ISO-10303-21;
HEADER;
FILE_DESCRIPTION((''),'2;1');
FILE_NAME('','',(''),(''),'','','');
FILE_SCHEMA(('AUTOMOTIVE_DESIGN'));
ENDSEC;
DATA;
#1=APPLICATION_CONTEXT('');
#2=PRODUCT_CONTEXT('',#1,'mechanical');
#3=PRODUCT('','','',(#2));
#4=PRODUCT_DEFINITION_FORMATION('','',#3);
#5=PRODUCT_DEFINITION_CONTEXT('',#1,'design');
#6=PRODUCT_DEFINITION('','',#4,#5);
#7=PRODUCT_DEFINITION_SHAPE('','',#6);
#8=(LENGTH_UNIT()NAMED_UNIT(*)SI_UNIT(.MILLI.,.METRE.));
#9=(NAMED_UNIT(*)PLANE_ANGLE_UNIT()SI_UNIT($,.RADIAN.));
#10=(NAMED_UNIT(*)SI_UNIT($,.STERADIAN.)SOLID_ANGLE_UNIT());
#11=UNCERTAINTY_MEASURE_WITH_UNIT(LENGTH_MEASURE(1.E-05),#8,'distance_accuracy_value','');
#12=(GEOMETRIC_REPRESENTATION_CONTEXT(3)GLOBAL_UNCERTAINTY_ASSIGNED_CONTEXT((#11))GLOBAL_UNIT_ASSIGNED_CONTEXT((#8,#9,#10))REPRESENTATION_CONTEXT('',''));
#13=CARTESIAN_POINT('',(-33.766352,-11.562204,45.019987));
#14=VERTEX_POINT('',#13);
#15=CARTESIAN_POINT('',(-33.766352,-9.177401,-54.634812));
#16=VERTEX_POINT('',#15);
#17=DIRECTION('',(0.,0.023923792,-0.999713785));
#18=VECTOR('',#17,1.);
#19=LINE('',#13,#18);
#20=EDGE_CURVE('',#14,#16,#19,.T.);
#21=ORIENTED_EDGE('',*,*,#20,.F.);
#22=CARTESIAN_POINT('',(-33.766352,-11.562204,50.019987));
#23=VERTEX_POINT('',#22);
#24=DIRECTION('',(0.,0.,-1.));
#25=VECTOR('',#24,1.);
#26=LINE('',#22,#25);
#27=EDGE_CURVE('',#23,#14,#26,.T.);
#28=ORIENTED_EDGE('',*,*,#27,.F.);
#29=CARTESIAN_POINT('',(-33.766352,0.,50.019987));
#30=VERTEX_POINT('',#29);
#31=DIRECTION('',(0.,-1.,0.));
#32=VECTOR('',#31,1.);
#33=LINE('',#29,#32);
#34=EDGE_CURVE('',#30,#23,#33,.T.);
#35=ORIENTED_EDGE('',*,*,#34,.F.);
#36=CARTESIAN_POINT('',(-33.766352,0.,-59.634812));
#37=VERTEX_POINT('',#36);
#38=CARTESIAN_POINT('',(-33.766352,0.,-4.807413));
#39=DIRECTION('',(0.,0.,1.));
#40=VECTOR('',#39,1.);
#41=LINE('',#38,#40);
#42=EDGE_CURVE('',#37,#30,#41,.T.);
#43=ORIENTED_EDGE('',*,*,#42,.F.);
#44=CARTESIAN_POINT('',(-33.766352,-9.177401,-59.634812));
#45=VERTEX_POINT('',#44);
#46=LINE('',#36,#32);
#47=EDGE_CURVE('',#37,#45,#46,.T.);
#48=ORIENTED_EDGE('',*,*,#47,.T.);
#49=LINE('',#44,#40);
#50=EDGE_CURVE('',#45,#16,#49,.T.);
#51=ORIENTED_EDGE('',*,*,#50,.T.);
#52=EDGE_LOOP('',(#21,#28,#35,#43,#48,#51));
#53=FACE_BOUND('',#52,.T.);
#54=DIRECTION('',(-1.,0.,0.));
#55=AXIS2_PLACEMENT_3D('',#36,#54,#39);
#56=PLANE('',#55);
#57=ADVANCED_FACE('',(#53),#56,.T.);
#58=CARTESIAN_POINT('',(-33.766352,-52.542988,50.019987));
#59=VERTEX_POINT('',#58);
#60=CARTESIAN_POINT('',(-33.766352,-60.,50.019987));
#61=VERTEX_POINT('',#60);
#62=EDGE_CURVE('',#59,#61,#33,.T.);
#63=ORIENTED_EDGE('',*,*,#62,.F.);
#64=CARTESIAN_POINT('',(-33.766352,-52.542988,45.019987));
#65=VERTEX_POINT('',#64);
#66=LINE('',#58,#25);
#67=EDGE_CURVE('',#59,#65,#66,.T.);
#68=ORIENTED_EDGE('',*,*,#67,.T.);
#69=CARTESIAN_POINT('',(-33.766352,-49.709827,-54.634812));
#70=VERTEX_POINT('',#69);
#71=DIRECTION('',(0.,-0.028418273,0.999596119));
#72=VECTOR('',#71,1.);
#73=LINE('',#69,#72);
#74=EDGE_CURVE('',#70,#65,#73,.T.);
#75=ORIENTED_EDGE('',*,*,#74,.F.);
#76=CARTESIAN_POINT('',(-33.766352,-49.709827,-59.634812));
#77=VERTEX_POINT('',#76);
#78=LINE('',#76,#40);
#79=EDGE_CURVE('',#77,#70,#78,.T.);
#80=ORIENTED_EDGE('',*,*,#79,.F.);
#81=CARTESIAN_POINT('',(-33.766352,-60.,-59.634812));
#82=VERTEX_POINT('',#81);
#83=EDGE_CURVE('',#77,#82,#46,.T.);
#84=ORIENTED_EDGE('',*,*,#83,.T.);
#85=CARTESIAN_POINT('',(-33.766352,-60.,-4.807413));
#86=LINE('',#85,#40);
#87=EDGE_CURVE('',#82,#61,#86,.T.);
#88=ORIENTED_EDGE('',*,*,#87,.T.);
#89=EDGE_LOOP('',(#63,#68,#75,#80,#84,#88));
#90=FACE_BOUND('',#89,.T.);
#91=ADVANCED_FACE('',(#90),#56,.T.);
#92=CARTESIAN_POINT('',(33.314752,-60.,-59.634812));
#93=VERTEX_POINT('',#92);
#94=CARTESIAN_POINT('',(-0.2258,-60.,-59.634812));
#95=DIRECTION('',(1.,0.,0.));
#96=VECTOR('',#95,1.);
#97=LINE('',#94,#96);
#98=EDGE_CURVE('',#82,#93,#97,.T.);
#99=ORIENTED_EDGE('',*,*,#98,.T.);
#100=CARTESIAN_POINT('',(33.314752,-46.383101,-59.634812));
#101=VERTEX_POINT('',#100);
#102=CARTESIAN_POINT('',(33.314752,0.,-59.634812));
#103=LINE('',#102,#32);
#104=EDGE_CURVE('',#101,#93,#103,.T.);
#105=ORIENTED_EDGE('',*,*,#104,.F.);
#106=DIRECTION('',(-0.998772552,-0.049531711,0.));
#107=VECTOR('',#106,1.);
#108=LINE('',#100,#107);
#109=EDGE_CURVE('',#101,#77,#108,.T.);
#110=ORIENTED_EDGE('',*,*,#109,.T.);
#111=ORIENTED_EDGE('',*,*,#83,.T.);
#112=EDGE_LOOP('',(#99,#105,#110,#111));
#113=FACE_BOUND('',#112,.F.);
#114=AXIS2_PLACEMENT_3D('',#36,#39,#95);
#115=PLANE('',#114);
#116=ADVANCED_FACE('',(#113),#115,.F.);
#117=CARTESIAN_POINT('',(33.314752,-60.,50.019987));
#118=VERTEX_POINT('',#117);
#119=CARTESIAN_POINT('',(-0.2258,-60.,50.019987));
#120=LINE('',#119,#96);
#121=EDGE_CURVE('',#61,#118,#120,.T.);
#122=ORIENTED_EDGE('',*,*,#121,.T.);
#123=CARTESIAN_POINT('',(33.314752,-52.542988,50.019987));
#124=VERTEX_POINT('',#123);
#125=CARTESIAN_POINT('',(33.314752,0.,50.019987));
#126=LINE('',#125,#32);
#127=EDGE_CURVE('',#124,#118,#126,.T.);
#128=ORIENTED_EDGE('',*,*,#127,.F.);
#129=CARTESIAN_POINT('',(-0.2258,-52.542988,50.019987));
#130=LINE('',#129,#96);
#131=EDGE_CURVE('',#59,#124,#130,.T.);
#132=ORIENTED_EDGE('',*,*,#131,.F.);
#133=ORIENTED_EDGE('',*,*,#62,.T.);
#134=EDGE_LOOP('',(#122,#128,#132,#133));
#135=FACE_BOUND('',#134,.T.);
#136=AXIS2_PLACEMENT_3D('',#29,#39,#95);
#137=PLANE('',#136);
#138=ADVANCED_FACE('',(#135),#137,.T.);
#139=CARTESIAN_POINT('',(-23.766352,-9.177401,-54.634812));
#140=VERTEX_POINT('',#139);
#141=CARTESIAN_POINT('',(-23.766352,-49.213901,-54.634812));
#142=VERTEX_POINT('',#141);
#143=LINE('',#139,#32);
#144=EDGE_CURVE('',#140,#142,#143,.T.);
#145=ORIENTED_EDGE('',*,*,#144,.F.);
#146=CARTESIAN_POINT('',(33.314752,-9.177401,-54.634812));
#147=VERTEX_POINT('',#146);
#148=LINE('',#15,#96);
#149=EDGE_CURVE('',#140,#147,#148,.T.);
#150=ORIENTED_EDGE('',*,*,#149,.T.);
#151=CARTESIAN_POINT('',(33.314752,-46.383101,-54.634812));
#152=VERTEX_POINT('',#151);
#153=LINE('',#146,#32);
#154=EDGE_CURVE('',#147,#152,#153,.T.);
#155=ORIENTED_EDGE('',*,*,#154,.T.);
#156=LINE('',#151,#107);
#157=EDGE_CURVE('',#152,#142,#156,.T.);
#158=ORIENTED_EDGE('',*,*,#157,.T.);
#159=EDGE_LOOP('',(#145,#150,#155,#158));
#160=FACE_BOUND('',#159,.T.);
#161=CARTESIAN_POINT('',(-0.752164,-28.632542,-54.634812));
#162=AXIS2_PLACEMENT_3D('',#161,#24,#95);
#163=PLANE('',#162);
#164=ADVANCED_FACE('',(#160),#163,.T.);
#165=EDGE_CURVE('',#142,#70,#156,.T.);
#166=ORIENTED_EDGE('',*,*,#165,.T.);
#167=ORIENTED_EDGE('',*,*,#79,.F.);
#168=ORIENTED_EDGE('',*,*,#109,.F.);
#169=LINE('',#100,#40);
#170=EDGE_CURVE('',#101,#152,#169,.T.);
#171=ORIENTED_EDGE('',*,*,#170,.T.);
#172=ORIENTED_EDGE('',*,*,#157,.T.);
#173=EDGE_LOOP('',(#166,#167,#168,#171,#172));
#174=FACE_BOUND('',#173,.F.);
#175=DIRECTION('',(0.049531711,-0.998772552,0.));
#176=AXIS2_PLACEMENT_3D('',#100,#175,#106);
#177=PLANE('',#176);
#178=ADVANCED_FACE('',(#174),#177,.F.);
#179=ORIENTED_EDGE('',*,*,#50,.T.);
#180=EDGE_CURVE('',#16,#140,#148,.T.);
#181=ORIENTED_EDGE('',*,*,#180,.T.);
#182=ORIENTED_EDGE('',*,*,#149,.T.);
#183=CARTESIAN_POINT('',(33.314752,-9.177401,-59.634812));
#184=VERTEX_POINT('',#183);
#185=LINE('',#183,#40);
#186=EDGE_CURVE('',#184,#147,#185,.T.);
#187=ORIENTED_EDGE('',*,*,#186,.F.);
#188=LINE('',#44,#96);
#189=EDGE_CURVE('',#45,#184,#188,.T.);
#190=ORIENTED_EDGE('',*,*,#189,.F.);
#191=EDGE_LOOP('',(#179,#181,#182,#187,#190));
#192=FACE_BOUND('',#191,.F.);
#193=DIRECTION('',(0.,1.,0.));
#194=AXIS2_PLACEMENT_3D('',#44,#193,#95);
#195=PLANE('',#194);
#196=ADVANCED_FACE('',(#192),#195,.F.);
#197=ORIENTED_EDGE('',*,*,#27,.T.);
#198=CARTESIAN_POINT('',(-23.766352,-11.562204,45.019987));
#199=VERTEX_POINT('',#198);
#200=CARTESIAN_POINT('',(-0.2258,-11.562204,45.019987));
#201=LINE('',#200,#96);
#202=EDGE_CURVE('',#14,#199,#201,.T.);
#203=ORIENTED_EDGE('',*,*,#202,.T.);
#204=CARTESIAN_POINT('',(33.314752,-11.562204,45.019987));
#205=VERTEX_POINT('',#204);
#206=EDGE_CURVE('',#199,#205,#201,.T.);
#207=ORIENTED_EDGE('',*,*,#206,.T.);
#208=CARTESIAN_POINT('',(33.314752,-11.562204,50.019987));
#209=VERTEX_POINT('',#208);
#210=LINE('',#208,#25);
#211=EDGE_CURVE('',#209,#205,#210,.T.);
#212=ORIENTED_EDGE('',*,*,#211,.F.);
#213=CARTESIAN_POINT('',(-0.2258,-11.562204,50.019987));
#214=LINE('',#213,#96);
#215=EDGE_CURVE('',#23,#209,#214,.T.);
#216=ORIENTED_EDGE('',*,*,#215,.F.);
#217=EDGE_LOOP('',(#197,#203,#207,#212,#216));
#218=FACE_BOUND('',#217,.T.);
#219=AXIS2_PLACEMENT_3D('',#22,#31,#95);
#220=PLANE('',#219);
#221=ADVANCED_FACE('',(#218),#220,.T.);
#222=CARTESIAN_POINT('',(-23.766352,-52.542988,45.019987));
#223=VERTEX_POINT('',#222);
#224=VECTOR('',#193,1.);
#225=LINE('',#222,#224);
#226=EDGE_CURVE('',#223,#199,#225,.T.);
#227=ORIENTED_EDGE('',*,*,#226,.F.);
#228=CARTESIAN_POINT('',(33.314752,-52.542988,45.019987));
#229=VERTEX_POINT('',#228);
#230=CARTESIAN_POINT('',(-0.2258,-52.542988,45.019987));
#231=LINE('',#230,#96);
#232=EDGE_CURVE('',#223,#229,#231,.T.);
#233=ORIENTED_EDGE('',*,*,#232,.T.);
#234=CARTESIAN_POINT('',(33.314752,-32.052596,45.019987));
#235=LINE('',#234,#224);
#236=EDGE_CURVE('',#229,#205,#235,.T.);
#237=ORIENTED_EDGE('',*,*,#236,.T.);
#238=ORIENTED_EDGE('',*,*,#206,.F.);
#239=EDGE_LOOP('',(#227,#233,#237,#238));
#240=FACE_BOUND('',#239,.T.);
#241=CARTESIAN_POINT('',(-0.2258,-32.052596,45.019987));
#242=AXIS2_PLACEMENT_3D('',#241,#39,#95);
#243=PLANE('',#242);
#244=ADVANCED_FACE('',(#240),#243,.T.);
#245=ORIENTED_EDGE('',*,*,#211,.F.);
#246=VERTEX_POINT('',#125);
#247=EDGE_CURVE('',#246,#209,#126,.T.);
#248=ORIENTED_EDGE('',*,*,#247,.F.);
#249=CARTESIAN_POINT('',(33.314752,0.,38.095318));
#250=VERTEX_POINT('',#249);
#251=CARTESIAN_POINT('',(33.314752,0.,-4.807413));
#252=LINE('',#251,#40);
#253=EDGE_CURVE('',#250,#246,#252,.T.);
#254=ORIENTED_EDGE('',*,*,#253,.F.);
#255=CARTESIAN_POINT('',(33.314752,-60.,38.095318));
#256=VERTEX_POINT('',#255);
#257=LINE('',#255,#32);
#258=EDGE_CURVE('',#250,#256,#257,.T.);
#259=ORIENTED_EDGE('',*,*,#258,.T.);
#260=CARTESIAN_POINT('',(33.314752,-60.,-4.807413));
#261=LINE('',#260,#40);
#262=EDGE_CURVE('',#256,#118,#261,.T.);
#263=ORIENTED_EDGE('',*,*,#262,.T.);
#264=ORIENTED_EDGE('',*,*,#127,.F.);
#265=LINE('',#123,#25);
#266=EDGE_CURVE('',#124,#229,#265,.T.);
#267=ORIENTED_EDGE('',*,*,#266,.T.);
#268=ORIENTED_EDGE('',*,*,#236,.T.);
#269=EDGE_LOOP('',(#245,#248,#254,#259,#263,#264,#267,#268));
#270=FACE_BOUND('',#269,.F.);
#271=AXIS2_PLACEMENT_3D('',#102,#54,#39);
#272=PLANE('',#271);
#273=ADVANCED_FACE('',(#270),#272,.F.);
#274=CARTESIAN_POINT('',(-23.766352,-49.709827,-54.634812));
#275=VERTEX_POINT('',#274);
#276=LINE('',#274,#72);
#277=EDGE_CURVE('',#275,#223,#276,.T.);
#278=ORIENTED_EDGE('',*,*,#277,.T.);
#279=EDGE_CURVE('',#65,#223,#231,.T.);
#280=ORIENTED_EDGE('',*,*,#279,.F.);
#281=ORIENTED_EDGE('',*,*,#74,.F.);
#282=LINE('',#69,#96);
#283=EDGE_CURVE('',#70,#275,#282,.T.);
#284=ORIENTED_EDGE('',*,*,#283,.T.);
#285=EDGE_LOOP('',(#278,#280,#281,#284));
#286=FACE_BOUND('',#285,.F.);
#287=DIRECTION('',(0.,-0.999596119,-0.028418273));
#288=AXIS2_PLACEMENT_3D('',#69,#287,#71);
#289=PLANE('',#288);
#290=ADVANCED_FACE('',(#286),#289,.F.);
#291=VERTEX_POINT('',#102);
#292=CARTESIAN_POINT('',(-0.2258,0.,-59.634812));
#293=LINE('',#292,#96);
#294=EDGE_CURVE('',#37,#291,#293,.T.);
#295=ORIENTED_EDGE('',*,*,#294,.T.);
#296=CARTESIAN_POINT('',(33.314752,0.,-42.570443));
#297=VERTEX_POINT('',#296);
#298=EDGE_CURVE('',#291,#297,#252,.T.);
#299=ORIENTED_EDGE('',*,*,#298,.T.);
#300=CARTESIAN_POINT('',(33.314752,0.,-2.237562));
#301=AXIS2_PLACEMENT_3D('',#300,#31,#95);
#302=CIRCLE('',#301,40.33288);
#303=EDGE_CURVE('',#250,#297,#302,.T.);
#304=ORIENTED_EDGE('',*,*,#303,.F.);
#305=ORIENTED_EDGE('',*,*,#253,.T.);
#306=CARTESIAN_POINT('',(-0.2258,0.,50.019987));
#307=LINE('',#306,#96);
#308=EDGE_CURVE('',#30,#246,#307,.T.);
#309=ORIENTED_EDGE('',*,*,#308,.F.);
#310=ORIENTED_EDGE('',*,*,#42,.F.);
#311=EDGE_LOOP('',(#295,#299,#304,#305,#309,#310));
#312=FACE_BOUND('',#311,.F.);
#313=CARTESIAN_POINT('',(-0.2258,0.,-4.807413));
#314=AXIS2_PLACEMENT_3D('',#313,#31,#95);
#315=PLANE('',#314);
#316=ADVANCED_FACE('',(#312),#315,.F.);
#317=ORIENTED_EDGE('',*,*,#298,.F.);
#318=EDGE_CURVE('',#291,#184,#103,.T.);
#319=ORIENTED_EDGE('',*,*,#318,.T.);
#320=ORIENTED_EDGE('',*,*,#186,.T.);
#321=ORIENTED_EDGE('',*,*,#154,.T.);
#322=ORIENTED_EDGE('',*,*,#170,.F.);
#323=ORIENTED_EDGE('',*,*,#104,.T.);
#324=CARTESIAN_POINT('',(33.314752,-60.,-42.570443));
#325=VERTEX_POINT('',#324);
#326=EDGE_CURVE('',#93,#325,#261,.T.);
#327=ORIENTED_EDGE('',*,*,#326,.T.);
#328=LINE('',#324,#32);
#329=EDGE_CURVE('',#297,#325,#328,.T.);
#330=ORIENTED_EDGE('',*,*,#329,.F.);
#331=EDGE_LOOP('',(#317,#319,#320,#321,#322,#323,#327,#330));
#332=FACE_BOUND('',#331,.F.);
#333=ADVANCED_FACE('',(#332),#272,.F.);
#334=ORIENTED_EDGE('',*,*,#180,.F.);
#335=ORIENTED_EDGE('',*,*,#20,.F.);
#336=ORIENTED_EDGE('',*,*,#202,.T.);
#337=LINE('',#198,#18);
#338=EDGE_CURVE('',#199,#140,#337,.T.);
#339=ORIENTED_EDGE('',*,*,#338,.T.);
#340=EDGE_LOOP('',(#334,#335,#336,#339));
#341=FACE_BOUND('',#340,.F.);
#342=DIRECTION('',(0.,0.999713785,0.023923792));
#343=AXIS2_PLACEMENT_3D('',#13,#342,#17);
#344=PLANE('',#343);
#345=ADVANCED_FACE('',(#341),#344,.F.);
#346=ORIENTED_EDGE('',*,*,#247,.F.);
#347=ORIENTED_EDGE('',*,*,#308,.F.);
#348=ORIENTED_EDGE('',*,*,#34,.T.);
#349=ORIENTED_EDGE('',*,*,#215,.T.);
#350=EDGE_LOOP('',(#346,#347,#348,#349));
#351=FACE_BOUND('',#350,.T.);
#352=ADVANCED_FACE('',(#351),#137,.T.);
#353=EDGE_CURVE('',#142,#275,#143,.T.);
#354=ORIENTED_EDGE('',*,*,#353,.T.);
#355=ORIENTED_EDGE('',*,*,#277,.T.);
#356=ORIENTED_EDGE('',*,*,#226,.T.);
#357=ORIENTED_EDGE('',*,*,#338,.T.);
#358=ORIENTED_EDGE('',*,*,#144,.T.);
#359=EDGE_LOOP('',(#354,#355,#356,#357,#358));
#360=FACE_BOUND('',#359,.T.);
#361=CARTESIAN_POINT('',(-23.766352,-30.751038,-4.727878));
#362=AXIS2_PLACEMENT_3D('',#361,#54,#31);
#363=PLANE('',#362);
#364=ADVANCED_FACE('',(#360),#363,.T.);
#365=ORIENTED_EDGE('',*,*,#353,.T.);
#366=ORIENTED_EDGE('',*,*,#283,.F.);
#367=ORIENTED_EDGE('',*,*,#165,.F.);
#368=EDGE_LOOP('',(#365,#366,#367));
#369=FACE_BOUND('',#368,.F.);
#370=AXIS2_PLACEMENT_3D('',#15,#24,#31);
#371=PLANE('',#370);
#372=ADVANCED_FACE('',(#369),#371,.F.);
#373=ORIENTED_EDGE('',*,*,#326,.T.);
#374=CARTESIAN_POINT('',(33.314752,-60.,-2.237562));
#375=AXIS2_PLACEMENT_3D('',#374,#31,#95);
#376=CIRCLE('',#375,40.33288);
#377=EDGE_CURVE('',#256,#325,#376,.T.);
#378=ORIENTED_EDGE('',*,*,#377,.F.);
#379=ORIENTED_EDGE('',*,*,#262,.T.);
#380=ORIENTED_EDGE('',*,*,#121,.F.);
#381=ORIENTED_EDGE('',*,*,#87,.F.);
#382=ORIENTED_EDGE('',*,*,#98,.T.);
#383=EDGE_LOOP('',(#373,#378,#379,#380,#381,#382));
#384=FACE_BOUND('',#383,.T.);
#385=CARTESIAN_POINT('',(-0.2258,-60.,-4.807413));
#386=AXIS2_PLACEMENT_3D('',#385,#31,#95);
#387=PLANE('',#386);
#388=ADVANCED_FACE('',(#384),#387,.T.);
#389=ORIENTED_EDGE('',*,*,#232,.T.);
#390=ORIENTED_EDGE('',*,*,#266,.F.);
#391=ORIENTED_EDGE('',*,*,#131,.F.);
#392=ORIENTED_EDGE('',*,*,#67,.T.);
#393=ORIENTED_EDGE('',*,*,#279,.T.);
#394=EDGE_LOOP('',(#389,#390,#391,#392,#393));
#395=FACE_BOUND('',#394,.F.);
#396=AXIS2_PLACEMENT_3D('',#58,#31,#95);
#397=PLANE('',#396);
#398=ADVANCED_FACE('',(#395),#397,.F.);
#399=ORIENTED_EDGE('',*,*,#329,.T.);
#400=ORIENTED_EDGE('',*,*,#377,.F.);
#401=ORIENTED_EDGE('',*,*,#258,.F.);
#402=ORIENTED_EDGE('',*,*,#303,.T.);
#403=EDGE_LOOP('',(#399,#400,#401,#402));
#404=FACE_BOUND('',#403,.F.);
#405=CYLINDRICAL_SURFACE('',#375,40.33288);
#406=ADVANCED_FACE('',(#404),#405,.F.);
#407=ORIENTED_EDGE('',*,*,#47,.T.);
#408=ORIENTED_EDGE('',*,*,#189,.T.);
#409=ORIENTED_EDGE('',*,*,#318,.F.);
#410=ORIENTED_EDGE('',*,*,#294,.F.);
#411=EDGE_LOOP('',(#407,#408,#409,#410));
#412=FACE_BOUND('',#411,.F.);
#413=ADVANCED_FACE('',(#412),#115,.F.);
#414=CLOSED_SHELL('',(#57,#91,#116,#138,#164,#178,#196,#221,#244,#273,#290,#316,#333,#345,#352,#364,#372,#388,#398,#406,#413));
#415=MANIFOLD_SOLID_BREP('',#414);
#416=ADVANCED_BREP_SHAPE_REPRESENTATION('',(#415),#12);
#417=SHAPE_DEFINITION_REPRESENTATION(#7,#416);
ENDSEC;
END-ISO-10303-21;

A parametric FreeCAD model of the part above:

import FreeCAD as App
import Part
import Sketcher

V = App.Vector
Q = App.Units.Quantity


def add_polygon(sketch, points):
    """Adds a closed chain of lines whose ends are joined by coincident constraints."""
    first, n = sketch.GeometryCount, len(points)
    for a, b in zip(points, points[1:] + points[:1]):
        sketch.addGeometry(Part.LineSegment(App.Vector(*a, 0), App.Vector(*b, 0)), False)
    for i in range(n):
        sketch.addConstraint(Sketcher.Constraint("Coincident", first + i, 2, first + (i + 1) % n, 1))

doc = App.newDocument("Part")
body = doc.addObject("PartDesign::Body", "Body")

sketch1 = body.newObject("Sketcher::SketchObject", "Sketch")
sketch1.AttachmentSupport = (doc.getObject("XZ_Plane"), [""])
sketch1.MapMode = "FlatFace"
add_polygon(sketch1, [(-34, 50), (-34, -60), (33, -60), (33, 50)])
sketch1.addConstraint([
    Sketcher.Constraint("Vertical", 0),
    Sketcher.Constraint("Horizontal", 1),
    Sketcher.Constraint("Vertical", 2),
    Sketcher.Constraint("Horizontal", 3),
    Sketcher.Constraint("DistanceY", 0, 2, 0, 1, Q("109.654799 mm")),
    Sketcher.Constraint("DistanceX", 1, 1, 1, 2, Q("67.081104 mm")),
    Sketcher.Constraint("DistanceX", 0, 2, -1, 1, Q("33.766352 mm")),
    Sketcher.Constraint("DistanceY", 0, 2, -1, 1, Q("59.634812 mm")),
])
pad1 = body.newObject("PartDesign::Pad", "Pad")
pad1.Profile = sketch1
pad1.Length = 60

sketch2 = body.newObject("Sketcher::SketchObject", "Sketch001")
sketch2.AttachmentSupport = (doc.getObject("XZ_Plane"), [""])
sketch2.MapMode = "FlatFace"
sketch2.AttachmentOffset = App.Placement(V(0, 0, 60), App.Rotation())
sketch2.addGeometry(Part.Circle(V(33, -2, 0), V(0, 0, 1), 40), False)
sketch2.addConstraint([
    Sketcher.Constraint("Diameter", 0, Q("80.665761 mm")),
    Sketcher.Constraint("DistanceX", -1, 1, 0, 3, Q("33.314752 mm")),
    Sketcher.Constraint("DistanceY", 0, 3, -1, 1, Q("2.237562 mm")),
])
pocket1 = body.newObject("PartDesign::Pocket", "Pocket")
pocket1.Profile = sketch2
pocket1.Length = 60

sketch3 = body.newObject("Sketcher::SketchObject", "Sketch002")
sketch3.AttachmentSupport = (doc.getObject("XY_Plane"), [""])
sketch3.MapMode = "FlatFace"
sketch3.AttachmentOffset = App.Placement(V(0, 0, 50.019987), App.Rotation())
add_polygon(sketch3, [(-34, -12), (-34, -53), (33, -53), (33, -12)])
sketch3.addConstraint([
    Sketcher.Constraint("Vertical", 0),
    Sketcher.Constraint("Horizontal", 1),
    Sketcher.Constraint("Vertical", 2),
    Sketcher.Constraint("Horizontal", 3),
    Sketcher.Constraint("DistanceX", 1, 1, 1, 2, Q("67.081104 mm")),
    Sketcher.Constraint("DistanceY", 0, 2, 0, 1, Q("40.980784 mm")),
    Sketcher.Constraint("DistanceX", 0, 2, -1, 1, Q("33.766352 mm")),
    Sketcher.Constraint("DistanceY", 0, 2, -1, 1, Q("52.542988 mm")),
])
pocket2 = body.newObject("PartDesign::Pocket", "Pocket001")
pocket2.Profile = sketch3
pocket2.Length = 5

sketch4 = body.newObject("Sketcher::SketchObject", "Sketch003")
sketch4.AttachmentSupport = (doc.getObject("XY_Plane"), [""])
sketch4.MapMode = "FlatFace"
sketch4.AttachmentOffset = App.Placement(V(0, 0, -59.634812), App.Rotation())
add_polygon(sketch4, [(-34, -50), (-34, -9), (33, -9), (33, -46)])
sketch4.addConstraint([
    Sketcher.Constraint("Vertical", 0),
    Sketcher.Constraint("Horizontal", 1),
    Sketcher.Constraint("Vertical", 2),
    Sketcher.Constraint("DistanceY", 2, 2, 2, 1, Q("37.205701 mm")),
    Sketcher.Constraint("DistanceY", 0, 2, -1, 1, Q("9.177401 mm")),
    Sketcher.Constraint("DistanceX", 1, 1, 1, 2, Q("67.081104 mm")),
    Sketcher.Constraint("DistanceY", 0, 1, 0, 2, Q("40.532426 mm")),
    Sketcher.Constraint("DistanceX", 0, 2, -1, 1, Q("33.766352 mm")),
])
pocket3 = body.newObject("PartDesign::Pocket", "Pocket002")
pocket3.Profile = sketch4
pocket3.Length = 5
pocket3.Reversed = True

sketch5 = body.newObject("Sketcher::SketchObject", "Sketch004")
sketch5.AttachmentSupport = (doc.getObject("YZ_Plane"), [""])
sketch5.MapMode = "FlatFace"
sketch5.AttachmentOffset = App.Placement(V(0, 0, -33.766352), App.Rotation())
add_polygon(sketch5, [(-53, 45), (-12, 45), (-9, -55), (-50, -55)])
sketch5.addConstraint([
    Sketcher.Constraint("Horizontal", 0),
    Sketcher.Constraint("Horizontal", 2),
    Sketcher.Constraint("DistanceX", 1, 2, -1, 1, Q("9.177401 mm")),
    Sketcher.Constraint("DistanceY", 1, 2, 0, 2, Q("99.654799 mm")),
    Sketcher.Constraint("Distance", 1, Q("99.68333 mm")),
    Sketcher.Constraint("DistanceX", 0, 1, 0, 2, Q("40.980784 mm")),
    Sketcher.Constraint("DistanceX", 2, 2, 2, 1, Q("40.532426 mm")),
    Sketcher.Constraint("DistanceY", -1, 1, 0, 2, Q("45.019987 mm")),
])
pocket4 = body.newObject("PartDesign::Pocket", "Pocket003")
pocket4.Profile = sketch5
pocket4.Length = 10
pocket4.Reversed = True

doc.recompute()
